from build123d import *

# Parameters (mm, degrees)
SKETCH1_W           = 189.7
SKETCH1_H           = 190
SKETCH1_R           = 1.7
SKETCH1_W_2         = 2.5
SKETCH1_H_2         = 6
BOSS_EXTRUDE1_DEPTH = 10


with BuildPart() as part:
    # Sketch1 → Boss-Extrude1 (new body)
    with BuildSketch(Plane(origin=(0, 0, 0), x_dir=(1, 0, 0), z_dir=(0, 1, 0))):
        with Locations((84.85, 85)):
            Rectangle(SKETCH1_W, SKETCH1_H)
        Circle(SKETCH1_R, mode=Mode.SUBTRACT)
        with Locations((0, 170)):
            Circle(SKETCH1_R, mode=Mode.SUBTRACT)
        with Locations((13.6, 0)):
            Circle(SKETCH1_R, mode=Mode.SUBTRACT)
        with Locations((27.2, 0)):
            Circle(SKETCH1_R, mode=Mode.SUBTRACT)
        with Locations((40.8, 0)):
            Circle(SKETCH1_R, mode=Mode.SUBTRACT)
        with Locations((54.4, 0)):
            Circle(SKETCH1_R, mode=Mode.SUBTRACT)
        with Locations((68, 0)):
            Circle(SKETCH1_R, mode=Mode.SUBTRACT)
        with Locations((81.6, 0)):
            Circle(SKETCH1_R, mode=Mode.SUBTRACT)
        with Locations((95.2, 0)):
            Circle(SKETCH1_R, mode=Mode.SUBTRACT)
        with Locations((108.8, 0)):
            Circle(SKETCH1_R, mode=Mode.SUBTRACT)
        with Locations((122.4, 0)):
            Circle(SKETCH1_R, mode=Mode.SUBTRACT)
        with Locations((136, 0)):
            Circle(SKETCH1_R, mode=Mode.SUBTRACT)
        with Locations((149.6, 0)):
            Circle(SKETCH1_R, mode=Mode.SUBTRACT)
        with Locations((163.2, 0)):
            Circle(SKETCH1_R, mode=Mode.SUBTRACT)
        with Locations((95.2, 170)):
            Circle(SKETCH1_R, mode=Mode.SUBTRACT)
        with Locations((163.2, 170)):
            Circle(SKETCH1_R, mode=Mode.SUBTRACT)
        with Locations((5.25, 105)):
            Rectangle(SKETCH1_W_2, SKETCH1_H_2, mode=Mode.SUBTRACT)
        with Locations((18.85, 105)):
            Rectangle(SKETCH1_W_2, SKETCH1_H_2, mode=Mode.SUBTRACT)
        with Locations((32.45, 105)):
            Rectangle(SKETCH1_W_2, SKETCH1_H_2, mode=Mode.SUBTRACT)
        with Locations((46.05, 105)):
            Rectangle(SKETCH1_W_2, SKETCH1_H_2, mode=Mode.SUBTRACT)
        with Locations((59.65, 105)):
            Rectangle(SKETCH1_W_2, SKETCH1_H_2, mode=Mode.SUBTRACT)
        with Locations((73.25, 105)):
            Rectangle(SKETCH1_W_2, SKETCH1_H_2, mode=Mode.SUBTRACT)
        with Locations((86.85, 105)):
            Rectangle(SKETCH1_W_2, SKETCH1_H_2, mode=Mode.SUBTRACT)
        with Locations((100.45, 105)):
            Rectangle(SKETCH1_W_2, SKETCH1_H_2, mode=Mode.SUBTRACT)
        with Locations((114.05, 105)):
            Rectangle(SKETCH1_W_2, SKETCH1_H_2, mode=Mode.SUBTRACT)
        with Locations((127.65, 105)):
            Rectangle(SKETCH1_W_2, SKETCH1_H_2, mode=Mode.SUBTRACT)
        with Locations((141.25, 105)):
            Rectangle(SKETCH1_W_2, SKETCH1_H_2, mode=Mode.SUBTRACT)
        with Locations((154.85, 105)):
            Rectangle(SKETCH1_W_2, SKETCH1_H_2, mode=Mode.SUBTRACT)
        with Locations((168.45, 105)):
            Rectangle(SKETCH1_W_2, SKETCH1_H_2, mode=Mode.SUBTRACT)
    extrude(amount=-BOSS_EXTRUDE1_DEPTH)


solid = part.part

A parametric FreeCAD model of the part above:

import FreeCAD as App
import Part
import Sketcher
from FreeCAD import Vector

doc = App.newDocument("Part")
body = doc.addObject("PartDesign::Body", "Body")

# Sketch on XZ plane
sketch1 = body.newObject("Sketcher::SketchObject", "Sketch")
sketch1.AttachmentSupport = (doc.getObject("XZ_Plane"), [""])
sketch1.MapMode = "FlatFace"
sketch1.addGeometry([
    Part.LineSegment(Vector(-10, -180, 0), Vector(-10, 10, 0)),  # 0
    Part.LineSegment(Vector(-10, 10, 0), Vector(179.7, 10, 0)),  # 1
    Part.LineSegment(Vector(179.7, 10, 0), Vector(179.7, -180, 0)),  # 2
    Part.LineSegment(Vector(179.7, -180, 0), Vector(-10, -180, 0)),  # 3
    Part.Circle(Vector(0, 0, 0), Vector(0, 0, 1), 1.7),  # 4
    Part.Circle(Vector(13.6, 0, 0), Vector(0, 0, 1), 1.7),  # 5
    Part.Circle(Vector(27.2, 0, 0), Vector(0, 0, 1), 1.7),  # 6
    Part.Circle(Vector(40.8, 0, 0), Vector(0, 0, 1), 1.7),  # 7
    Part.Circle(Vector(54.4, 0, 0), Vector(0, 0, 1), 1.7),  # 8
    Part.Circle(Vector(68, 0, 0), Vector(0, 0, 1), 1.7),  # 9
    Part.Circle(Vector(81.6, 0, 0), Vector(0, 0, 1), 1.7),  # 10
    Part.Circle(Vector(95.2, 0, 0), Vector(0, 0, 1), 1.7),  # 11
    Part.Circle(Vector(108.8, 0, 0), Vector(0, 0, 1), 1.7),  # 12
    Part.Circle(Vector(122.4, 0, 0), Vector(0, 0, 1), 1.7),  # 13
    Part.Circle(Vector(136, 0, 0), Vector(0, 0, 1), 1.7),  # 14
    Part.Circle(Vector(149.6, 0, 0), Vector(0, 0, 1), 1.7),  # 15
    Part.Circle(Vector(163.2, 0, 0), Vector(0, 0, 1), 1.7),  # 16
    Part.LineSegment(Vector(6.5, -102, 0), Vector(4, -102, 0)),  # 17
    Part.LineSegment(Vector(4, -102, 0), Vector(4, -108, 0)),  # 18
    Part.LineSegment(Vector(4, -108, 0), Vector(6.5, -108, 0)),  # 19
    Part.LineSegment(Vector(6.5, -108, 0), Vector(6.5, -102, 0)),  # 20
    Part.LineSegment(Vector(20.1, -102, 0), Vector(17.6, -102, 0)),  # 21
    Part.LineSegment(Vector(17.6, -102, 0), Vector(17.6, -108, 0)),  # 22
    Part.LineSegment(Vector(17.6, -108, 0), Vector(20.1, -108, 0)),  # 23
    Part.LineSegment(Vector(20.1, -108, 0), Vector(20.1, -102, 0)),  # 24
    Part.LineSegment(Vector(33.7, -102, 0), Vector(31.2, -102, 0)),  # 25
    Part.LineSegment(Vector(31.2, -102, 0), Vector(31.2, -108, 0)),  # 26
    Part.LineSegment(Vector(31.2, -108, 0), Vector(33.7, -108, 0)),  # 27
    Part.LineSegment(Vector(33.7, -108, 0), Vector(33.7, -102, 0)),  # 28
    Part.LineSegment(Vector(47.3, -102, 0), Vector(44.8, -102, 0)),  # 29
    Part.LineSegment(Vector(44.8, -102, 0), Vector(44.8, -108, 0)),  # 30
    Part.LineSegment(Vector(44.8, -108, 0), Vector(47.3, -108, 0)),  # 31
    Part.LineSegment(Vector(47.3, -108, 0), Vector(47.3, -102, 0)),  # 32
    Part.LineSegment(Vector(60.9, -102, 0), Vector(58.4, -102, 0)),  # 33
    Part.LineSegment(Vector(58.4, -102, 0), Vector(58.4, -108, 0)),  # 34
    Part.LineSegment(Vector(58.4, -108, 0), Vector(60.9, -108, 0)),  # 35
    Part.LineSegment(Vector(60.9, -108, 0), Vector(60.9, -102, 0)),  # 36
    Part.LineSegment(Vector(74.5, -102, 0), Vector(72, -102, 0)),  # 37
    Part.LineSegment(Vector(72, -102, 0), Vector(72, -108, 0)),  # 38
    Part.LineSegment(Vector(72, -108, 0), Vector(74.5, -108, 0)),  # 39
    Part.LineSegment(Vector(74.5, -108, 0), Vector(74.5, -102, 0)),  # 40
    Part.Circle(Vector(0, -170, 0), Vector(0, 0, 1), 1.7),  # 41
    Part.LineSegment(Vector(88.1, -102, 0), Vector(85.6, -102, 0)),  # 42
    Part.LineSegment(Vector(85.6, -102, 0), Vector(85.6, -108, 0)),  # 43
    Part.LineSegment(Vector(85.6, -108, 0), Vector(88.1, -108, 0)),  # 44
    Part.LineSegment(Vector(88.1, -108, 0), Vector(88.1, -102, 0)),  # 45
    Part.LineSegment(Vector(101.7, -102, 0), Vector(99.2, -102, 0)),  # 46
    Part.LineSegment(Vector(99.2, -102, 0), Vector(99.2, -108, 0)),  # 47
    Part.LineSegment(Vector(99.2, -108, 0), Vector(101.7, -108, 0)),  # 48
    Part.LineSegment(Vector(101.7, -108, 0), Vector(101.7, -102, 0)),  # 49
    Part.LineSegment(Vector(115.3, -102, 0), Vector(112.8, -102, 0)),  # 50
    Part.LineSegment(Vector(112.8, -102, 0), Vector(112.8, -108, 0)),  # 51
    Part.LineSegment(Vector(112.8, -108, 0), Vector(115.3, -108, 0)),  # 52
    Part.LineSegment(Vector(115.3, -108, 0), Vector(115.3, -102, 0)),  # 53
    Part.LineSegment(Vector(128.9, -102, 0), Vector(126.4, -102, 0)),  # 54
    Part.LineSegment(Vector(126.4, -102, 0), Vector(126.4, -108, 0)),  # 55
    Part.LineSegment(Vector(126.4, -108, 0), Vector(128.9, -108, 0)),  # 56
    Part.LineSegment(Vector(128.9, -108, 0), Vector(128.9, -102, 0)),  # 57
    Part.LineSegment(Vector(142.5, -102, 0), Vector(140, -102, 0)),  # 58
    Part.LineSegment(Vector(140, -102, 0), Vector(140, -108, 0)),  # 59
    Part.LineSegment(Vector(140, -108, 0), Vector(142.5, -108, 0)),  # 60
    Part.LineSegment(Vector(142.5, -108, 0), Vector(142.5, -102, 0)),  # 61
    Part.LineSegment(Vector(156.1, -102, 0), Vector(153.6, -102, 0)),  # 62
    Part.LineSegment(Vector(153.6, -102, 0), Vector(153.6, -108, 0)),  # 63
    Part.LineSegment(Vector(153.6, -108, 0), Vector(156.1, -108, 0)),  # 64
    Part.LineSegment(Vector(156.1, -108, 0), Vector(156.1, -102, 0)),  # 65
    Part.LineSegment(Vector(169.7, -102, 0), Vector(167.2, -102, 0)),  # 66
    Part.LineSegment(Vector(167.2, -102, 0), Vector(167.2, -108, 0)),  # 67
    Part.LineSegment(Vector(167.2, -108, 0), Vector(169.7, -108, 0)),  # 68
    Part.LineSegment(Vector(169.7, -108, 0), Vector(169.7, -102, 0)),  # 69
    Part.Circle(Vector(95.2, -170, 0), Vector(0, 0, 1), 1.7),  # 70
    Part.Circle(Vector(163.2, -170, 0), Vector(0, 0, 1), 1.7),  # 71
], False)
sketch1.addConstraint([
    Sketcher.Constraint("Coincident", 0, 2, 1, 1),
    Sketcher.Constraint("Coincident", 1, 2, 2, 1),
    Sketcher.Constraint("Coincident", 2, 2, 3, 1),
    Sketcher.Constraint("Coincident", 3, 2, 0, 1),
    Sketcher.Constraint("Coincident", 17, 2, 18, 1),
    Sketcher.Constraint("Coincident", 18, 2, 19, 1),
    Sketcher.Constraint("Coincident", 19, 2, 20, 1),
    Sketcher.Constraint("Coincident", 20, 2, 17, 1),
    Sketcher.Constraint("Coincident", 21, 2, 22, 1),
    Sketcher.Constraint("Coincident", 22, 2, 23, 1),
    Sketcher.Constraint("Coincident", 23, 2, 24, 1),
    Sketcher.Constraint("Coincident", 24, 2, 21, 1),
    Sketcher.Constraint("Coincident", 25, 2, 26, 1),
    Sketcher.Constraint("Coincident", 26, 2, 27, 1),
    Sketcher.Constraint("Coincident", 27, 2, 28, 1),
    Sketcher.Constraint("Coincident", 28, 2, 25, 1),
    Sketcher.Constraint("Coincident", 29, 2, 30, 1),
    Sketcher.Constraint("Coincident", 30, 2, 31, 1),
    Sketcher.Constraint("Coincident", 31, 2, 32, 1),
    Sketcher.Constraint("Coincident", 32, 2, 29, 1),
    Sketcher.Constraint("Coincident", 33, 2, 34, 1),
    Sketcher.Constraint("Coincident", 34, 2, 35, 1),
    Sketcher.Constraint("Coincident", 35, 2, 36, 1),
    Sketcher.Constraint("Coincident", 36, 2, 33, 1),
    Sketcher.Constraint("Coincident", 37, 2, 38, 1),
    Sketcher.Constraint("Coincident", 38, 2, 39, 1),
    Sketcher.Constraint("Coincident", 39, 2, 40, 1),
    Sketcher.Constraint("Coincident", 40, 2, 37, 1),
    Sketcher.Constraint("Coincident", 42, 2, 43, 1),
    Sketcher.Constraint("Coincident", 43, 2, 44, 1),
    Sketcher.Constraint("Coincident", 44, 2, 45, 1),
    Sketcher.Constraint("Coincident", 45, 2, 42, 1),
    Sketcher.Constraint("Coincident", 46, 2, 47, 1),
    Sketcher.Constraint("Coincident", 47, 2, 48, 1),
    Sketcher.Constraint("Coincident", 48, 2, 49, 1),
    Sketcher.Constraint("Coincident", 49, 2, 46, 1),
    Sketcher.Constraint("Coincident", 50, 2, 51, 1),
    Sketcher.Constraint("Coincident", 51, 2, 52, 1),
    Sketcher.Constraint("Coincident", 52, 2, 53, 1),
    Sketcher.Constraint("Coincident", 53, 2, 50, 1),
    Sketcher.Constraint("Coincident", 54, 2, 55, 1),
    Sketcher.Constraint("Coincident", 55, 2, 56, 1),
    Sketcher.Constraint("Coincident", 56, 2, 57, 1),
    Sketcher.Constraint("Coincident", 57, 2, 54, 1),
    Sketcher.Constraint("Coincident", 58, 2, 59, 1),
    Sketcher.Constraint("Coincident", 59, 2, 60, 1),
    Sketcher.Constraint("Coincident", 60, 2, 61, 1),
    Sketcher.Constraint("Coincident", 61, 2, 58, 1),
    Sketcher.Constraint("Coincident", 62, 2, 63, 1),
    Sketcher.Constraint("Coincident", 63, 2, 64, 1),
    Sketcher.Constraint("Coincident", 64, 2, 65, 1),
    Sketcher.Constraint("Coincident", 65, 2, 62, 1),
    Sketcher.Constraint("Coincident", 66, 2, 67, 1),
    Sketcher.Constraint("Coincident", 67, 2, 68, 1),
    Sketcher.Constraint("Coincident", 68, 2, 69, 1),
    Sketcher.Constraint("Coincident", 69, 2, 66, 1),
    Sketcher.Constraint("Vertical", 0),
    Sketcher.Constraint("Horizontal", 1),
    Sketcher.Constraint("Vertical", 2),
    Sketcher.Constraint("Horizontal", 3),
    Sketcher.Constraint("Horizontal", 17),
    Sketcher.Constraint("Vertical", 18),
    Sketcher.Constraint("Horizontal", 19),
    Sketcher.Constraint("Vertical", 20),
    Sketcher.Constraint("Horizontal", 21),
    Sketcher.Constraint("Vertical", 22),
    Sketcher.Constraint("Horizontal", 23),
    Sketcher.Constraint("Vertical", 24),
    Sketcher.Constraint("Horizontal", 25),
    Sketcher.Constraint("Vertical", 26),
    Sketcher.Constraint("Horizontal", 27),
    Sketcher.Constraint("Vertical", 28),
    Sketcher.Constraint("Horizontal", 29),
    Sketcher.Constraint("Vertical", 30),
    Sketcher.Constraint("Horizontal", 31),
    Sketcher.Constraint("Vertical", 32),
    Sketcher.Constraint("Horizontal", 33),
    Sketcher.Constraint("Vertical", 34),
    Sketcher.Constraint("Horizontal", 35),
    Sketcher.Constraint("Vertical", 36),
    Sketcher.Constraint("Horizontal", 37),
    Sketcher.Constraint("Vertical", 38),
    Sketcher.Constraint("Horizontal", 39),
    Sketcher.Constraint("Vertical", 40),
    Sketcher.Constraint("Horizontal", 42),
    Sketcher.Constraint("Vertical", 43),
    Sketcher.Constraint("Horizontal", 44),
    Sketcher.Constraint("Vertical", 45),
    Sketcher.Constraint("Horizontal", 46),
    Sketcher.Constraint("Vertical", 47),
    Sketcher.Constraint("Horizontal", 48),
    Sketcher.Constraint("Vertical", 49),
    Sketcher.Constraint("Horizontal", 50),
    Sketcher.Constraint("Vertical", 51),
    Sketcher.Constraint("Horizontal", 52),
    Sketcher.Constraint("Vertical", 53),
    Sketcher.Constraint("Horizontal", 54),
    Sketcher.Constraint("Vertical", 55),
    Sketcher.Constraint("Horizontal", 56),
    Sketcher.Constraint("Vertical", 57),
    Sketcher.Constraint("Horizontal", 58),
    Sketcher.Constraint("Vertical", 59),
    Sketcher.Constraint("Horizontal", 60),
    Sketcher.Constraint("Vertical", 61),
    Sketcher.Constraint("Horizontal", 62),
    Sketcher.Constraint("Vertical", 63),
    Sketcher.Constraint("Horizontal", 64),
    Sketcher.Constraint("Vertical", 65),
    Sketcher.Constraint("Horizontal", 66),
    Sketcher.Constraint("Vertical", 67),
    Sketcher.Constraint("Horizontal", 68),
    Sketcher.Constraint("Vertical", 69),
    Sketcher.Constraint("Coincident", 4, 3, -1, 1),
    Sketcher.Constraint("Equal", 4, 5),
    Sketcher.Constraint("Equal", 5, 6),
    Sketcher.Constraint("Equal", 6, 7),
    Sketcher.Constraint("Equal", 7, 8),
    Sketcher.Constraint("Equal", 8, 9),
    Sketcher.Constraint("Equal", 9, 10),
    Sketcher.Constraint("Equal", 10, 11),
    Sketcher.Constraint("Equal", 11, 12),
    Sketcher.Constraint("Equal", 12, 13),
    Sketcher.Constraint("Equal", 13, 14),
    Sketcher.Constraint("Equal", 14, 15),
    Sketcher.Constraint("Equal", 15, 16),
    Sketcher.Constraint("Equal", 16, 41),
    Sketcher.Constraint("Equal", 41, 70),
    Sketcher.Constraint("Equal", 70, 71),
    Sketcher.Constraint("PointOnObject", 5, 3, -1),
    Sketcher.Constraint("PointOnObject", 6, 3, -1),
    Sketcher.Constraint("PointOnObject", 7, 3, -1),
    Sketcher.Constraint("PointOnObject", 8, 3, -1),
    Sketcher.Constraint("PointOnObject", 9, 3, -1),
    Sketcher.Constraint("PointOnObject", 10, 3, -1),
    Sketcher.Constraint("PointOnObject", 11, 3, -1),
    Sketcher.Constraint("PointOnObject", 12, 3, -1),
    Sketcher.Constraint("PointOnObject", 13, 3, -1),
    Sketcher.Constraint("PointOnObject", 14, 3, -1),
    Sketcher.Constraint("PointOnObject", 15, 3, -1),
    Sketcher.Constraint("PointOnObject", 16, 3, -1),
    Sketcher.Constraint("PointOnObject", 41, 3, -2),
    Sketcher.Constraint("Horizontal", 41, 3, 70, 3),
    Sketcher.Constraint("Horizontal", 70, 3, 71, 3),
    Sketcher.Constraint("Horizontal", 20, 2, 21, 2),
    Sketcher.Constraint("Horizontal", 19, 2, 22, 2),
    Sketcher.Constraint("Horizontal", 24, 2, 25, 2),
    Sketcher.Constraint("Horizontal", 23, 2, 26, 2),
    Sketcher.Constraint("Horizontal", 28, 2, 29, 2),
    Sketcher.Constraint("Horizontal", 27, 2, 30, 2),
    Sketcher.Constraint("Horizontal", 32, 2, 33, 2),
    Sketcher.Constraint("Horizontal", 31, 2, 34, 2),
    Sketcher.Constraint("Horizontal", 36, 2, 37, 2),
    Sketcher.Constraint("Horizontal", 35, 2, 38, 2),
    Sketcher.Constraint("Horizontal", 40, 2, 42, 2),
    Sketcher.Constraint("Horizontal", 39, 2, 43, 2),
    Sketcher.Constraint("Horizontal", 45, 2, 46, 2),
    Sketcher.Constraint("Horizontal", 44, 2, 47, 2),
    Sketcher.Constraint("Horizontal", 49, 2, 50, 2),
    Sketcher.Constraint("Horizontal", 48, 2, 51, 2),
    Sketcher.Constraint("Horizontal", 53, 2, 54, 2),
    Sketcher.Constraint("Horizontal", 52, 2, 55, 2),
    Sketcher.Constraint("Horizontal", 57, 2, 58, 2),
    Sketcher.Constraint("Horizontal", 56, 2, 59, 2),
    Sketcher.Constraint("Horizontal", 61, 2, 62, 2),
    Sketcher.Constraint("Horizontal", 60, 2, 63, 2),
    Sketcher.Constraint("Horizontal", 65, 2, 66, 2),
    Sketcher.Constraint("Horizontal", 64, 2, 67, 2),
    Sketcher.Constraint("Vertical", 11, 3, 70, 3),
    Sketcher.Constraint("Vertical", 16, 3, 71, 3),
    Sketcher.Constraint("Equal", 19, 21),
    Sketcher.Constraint("Equal", 23, 25),
    Sketcher.Constraint("Equal", 27, 29),
    Sketcher.Constraint("Equal", 31, 33),
    Sketcher.Constraint("Equal", 35, 37),
    Sketcher.Constraint("Equal", 39, 42),
    Sketcher.Constraint("Equal", 44, 46),
    Sketcher.Constraint("Equal", 48, 50),
    Sketcher.Constraint("Equal", 52, 54),
    Sketcher.Constraint("Equal", 56, 58),
    Sketcher.Constraint("Equal", 60, 62),
    Sketcher.Constraint("Equal", 64, 66),
    Sketcher.Constraint("Diameter", 4, 3.4),
    Sketcher.Constraint("DistanceY", 0, 1, 0, 2, 190.0),
    Sketcher.Constraint("DistanceY", 18, 2, 18, 1, 6.0),
    Sketcher.Constraint("DistanceX", 1, 1, 1, 2, 189.7),
    Sketcher.Constraint("DistanceX", 17, 2, 17, 1, 2.5),
    Sketcher.Constraint("DistanceX", -1, 1, 9, 3, 68.0),
    Sketcher.Constraint("DistanceX", -1, 1, 14, 3, 136.0),
    Sketcher.Constraint("DistanceY", 41, 3, -1, 1, 170.0),
    Sketcher.Constraint("DistanceX", 0, 2, -1, 1, 10.0),
    Sketcher.Constraint("DistanceY", -1, 1, 0, 2, 10.0),
    Sketcher.Constraint("DistanceX", -1, 1, 17, 2, 4.0),
    Sketcher.Constraint("DistanceY", 17, 2, -1, 1, 102.0),
    Sketcher.Constraint("DistanceX", -1, 1, 37, 2, 72.0),
    Sketcher.Constraint("DistanceX", -1, 1, 58, 2, 140.0),
    Sketcher.Constraint("DistanceX", -1, 1, 5, 3, 13.6),
    Sketcher.Constraint("DistanceX", -1, 1, 6, 3, 27.2),
    Sketcher.Constraint("DistanceX", -1, 1, 7, 3, 40.8),
    Sketcher.Constraint("DistanceX", -1, 1, 8, 3, 54.4),
    Sketcher.Constraint("DistanceX", -1, 1, 10, 3, 81.6),
    Sketcher.Constraint("DistanceX", -1, 1, 11, 3, 95.2),
    Sketcher.Constraint("DistanceX", -1, 1, 12, 3, 108.8),
    Sketcher.Constraint("DistanceX", -1, 1, 13, 3, 122.4),
    Sketcher.Constraint("DistanceX", -1, 1, 15, 3, 149.6),
    Sketcher.Constraint("DistanceX", -1, 1, 16, 3, 163.2),
    Sketcher.Constraint("DistanceX", -1, 1, 21, 2, 17.6),
    Sketcher.Constraint("DistanceX", -1, 1, 25, 2, 31.2),
    Sketcher.Constraint("DistanceX", -1, 1, 29, 2, 44.8),
    Sketcher.Constraint("DistanceX", -1, 1, 33, 2, 58.4),
    Sketcher.Constraint("DistanceX", -1, 1, 42, 2, 85.6),
    Sketcher.Constraint("DistanceX", -1, 1, 46, 2, 99.2),
    Sketcher.Constraint("DistanceX", -1, 1, 50, 2, 112.8),
    Sketcher.Constraint("DistanceX", -1, 1, 54, 2, 126.4),
    Sketcher.Constraint("DistanceX", -1, 1, 62, 2, 153.6),
    Sketcher.Constraint("DistanceX", -1, 1, 66, 2, 167.2),
])
pad1 = body.newObject("PartDesign::Pad", "Pad")
pad1.Profile = sketch1
pad1.Length = 10

doc.recompute()
